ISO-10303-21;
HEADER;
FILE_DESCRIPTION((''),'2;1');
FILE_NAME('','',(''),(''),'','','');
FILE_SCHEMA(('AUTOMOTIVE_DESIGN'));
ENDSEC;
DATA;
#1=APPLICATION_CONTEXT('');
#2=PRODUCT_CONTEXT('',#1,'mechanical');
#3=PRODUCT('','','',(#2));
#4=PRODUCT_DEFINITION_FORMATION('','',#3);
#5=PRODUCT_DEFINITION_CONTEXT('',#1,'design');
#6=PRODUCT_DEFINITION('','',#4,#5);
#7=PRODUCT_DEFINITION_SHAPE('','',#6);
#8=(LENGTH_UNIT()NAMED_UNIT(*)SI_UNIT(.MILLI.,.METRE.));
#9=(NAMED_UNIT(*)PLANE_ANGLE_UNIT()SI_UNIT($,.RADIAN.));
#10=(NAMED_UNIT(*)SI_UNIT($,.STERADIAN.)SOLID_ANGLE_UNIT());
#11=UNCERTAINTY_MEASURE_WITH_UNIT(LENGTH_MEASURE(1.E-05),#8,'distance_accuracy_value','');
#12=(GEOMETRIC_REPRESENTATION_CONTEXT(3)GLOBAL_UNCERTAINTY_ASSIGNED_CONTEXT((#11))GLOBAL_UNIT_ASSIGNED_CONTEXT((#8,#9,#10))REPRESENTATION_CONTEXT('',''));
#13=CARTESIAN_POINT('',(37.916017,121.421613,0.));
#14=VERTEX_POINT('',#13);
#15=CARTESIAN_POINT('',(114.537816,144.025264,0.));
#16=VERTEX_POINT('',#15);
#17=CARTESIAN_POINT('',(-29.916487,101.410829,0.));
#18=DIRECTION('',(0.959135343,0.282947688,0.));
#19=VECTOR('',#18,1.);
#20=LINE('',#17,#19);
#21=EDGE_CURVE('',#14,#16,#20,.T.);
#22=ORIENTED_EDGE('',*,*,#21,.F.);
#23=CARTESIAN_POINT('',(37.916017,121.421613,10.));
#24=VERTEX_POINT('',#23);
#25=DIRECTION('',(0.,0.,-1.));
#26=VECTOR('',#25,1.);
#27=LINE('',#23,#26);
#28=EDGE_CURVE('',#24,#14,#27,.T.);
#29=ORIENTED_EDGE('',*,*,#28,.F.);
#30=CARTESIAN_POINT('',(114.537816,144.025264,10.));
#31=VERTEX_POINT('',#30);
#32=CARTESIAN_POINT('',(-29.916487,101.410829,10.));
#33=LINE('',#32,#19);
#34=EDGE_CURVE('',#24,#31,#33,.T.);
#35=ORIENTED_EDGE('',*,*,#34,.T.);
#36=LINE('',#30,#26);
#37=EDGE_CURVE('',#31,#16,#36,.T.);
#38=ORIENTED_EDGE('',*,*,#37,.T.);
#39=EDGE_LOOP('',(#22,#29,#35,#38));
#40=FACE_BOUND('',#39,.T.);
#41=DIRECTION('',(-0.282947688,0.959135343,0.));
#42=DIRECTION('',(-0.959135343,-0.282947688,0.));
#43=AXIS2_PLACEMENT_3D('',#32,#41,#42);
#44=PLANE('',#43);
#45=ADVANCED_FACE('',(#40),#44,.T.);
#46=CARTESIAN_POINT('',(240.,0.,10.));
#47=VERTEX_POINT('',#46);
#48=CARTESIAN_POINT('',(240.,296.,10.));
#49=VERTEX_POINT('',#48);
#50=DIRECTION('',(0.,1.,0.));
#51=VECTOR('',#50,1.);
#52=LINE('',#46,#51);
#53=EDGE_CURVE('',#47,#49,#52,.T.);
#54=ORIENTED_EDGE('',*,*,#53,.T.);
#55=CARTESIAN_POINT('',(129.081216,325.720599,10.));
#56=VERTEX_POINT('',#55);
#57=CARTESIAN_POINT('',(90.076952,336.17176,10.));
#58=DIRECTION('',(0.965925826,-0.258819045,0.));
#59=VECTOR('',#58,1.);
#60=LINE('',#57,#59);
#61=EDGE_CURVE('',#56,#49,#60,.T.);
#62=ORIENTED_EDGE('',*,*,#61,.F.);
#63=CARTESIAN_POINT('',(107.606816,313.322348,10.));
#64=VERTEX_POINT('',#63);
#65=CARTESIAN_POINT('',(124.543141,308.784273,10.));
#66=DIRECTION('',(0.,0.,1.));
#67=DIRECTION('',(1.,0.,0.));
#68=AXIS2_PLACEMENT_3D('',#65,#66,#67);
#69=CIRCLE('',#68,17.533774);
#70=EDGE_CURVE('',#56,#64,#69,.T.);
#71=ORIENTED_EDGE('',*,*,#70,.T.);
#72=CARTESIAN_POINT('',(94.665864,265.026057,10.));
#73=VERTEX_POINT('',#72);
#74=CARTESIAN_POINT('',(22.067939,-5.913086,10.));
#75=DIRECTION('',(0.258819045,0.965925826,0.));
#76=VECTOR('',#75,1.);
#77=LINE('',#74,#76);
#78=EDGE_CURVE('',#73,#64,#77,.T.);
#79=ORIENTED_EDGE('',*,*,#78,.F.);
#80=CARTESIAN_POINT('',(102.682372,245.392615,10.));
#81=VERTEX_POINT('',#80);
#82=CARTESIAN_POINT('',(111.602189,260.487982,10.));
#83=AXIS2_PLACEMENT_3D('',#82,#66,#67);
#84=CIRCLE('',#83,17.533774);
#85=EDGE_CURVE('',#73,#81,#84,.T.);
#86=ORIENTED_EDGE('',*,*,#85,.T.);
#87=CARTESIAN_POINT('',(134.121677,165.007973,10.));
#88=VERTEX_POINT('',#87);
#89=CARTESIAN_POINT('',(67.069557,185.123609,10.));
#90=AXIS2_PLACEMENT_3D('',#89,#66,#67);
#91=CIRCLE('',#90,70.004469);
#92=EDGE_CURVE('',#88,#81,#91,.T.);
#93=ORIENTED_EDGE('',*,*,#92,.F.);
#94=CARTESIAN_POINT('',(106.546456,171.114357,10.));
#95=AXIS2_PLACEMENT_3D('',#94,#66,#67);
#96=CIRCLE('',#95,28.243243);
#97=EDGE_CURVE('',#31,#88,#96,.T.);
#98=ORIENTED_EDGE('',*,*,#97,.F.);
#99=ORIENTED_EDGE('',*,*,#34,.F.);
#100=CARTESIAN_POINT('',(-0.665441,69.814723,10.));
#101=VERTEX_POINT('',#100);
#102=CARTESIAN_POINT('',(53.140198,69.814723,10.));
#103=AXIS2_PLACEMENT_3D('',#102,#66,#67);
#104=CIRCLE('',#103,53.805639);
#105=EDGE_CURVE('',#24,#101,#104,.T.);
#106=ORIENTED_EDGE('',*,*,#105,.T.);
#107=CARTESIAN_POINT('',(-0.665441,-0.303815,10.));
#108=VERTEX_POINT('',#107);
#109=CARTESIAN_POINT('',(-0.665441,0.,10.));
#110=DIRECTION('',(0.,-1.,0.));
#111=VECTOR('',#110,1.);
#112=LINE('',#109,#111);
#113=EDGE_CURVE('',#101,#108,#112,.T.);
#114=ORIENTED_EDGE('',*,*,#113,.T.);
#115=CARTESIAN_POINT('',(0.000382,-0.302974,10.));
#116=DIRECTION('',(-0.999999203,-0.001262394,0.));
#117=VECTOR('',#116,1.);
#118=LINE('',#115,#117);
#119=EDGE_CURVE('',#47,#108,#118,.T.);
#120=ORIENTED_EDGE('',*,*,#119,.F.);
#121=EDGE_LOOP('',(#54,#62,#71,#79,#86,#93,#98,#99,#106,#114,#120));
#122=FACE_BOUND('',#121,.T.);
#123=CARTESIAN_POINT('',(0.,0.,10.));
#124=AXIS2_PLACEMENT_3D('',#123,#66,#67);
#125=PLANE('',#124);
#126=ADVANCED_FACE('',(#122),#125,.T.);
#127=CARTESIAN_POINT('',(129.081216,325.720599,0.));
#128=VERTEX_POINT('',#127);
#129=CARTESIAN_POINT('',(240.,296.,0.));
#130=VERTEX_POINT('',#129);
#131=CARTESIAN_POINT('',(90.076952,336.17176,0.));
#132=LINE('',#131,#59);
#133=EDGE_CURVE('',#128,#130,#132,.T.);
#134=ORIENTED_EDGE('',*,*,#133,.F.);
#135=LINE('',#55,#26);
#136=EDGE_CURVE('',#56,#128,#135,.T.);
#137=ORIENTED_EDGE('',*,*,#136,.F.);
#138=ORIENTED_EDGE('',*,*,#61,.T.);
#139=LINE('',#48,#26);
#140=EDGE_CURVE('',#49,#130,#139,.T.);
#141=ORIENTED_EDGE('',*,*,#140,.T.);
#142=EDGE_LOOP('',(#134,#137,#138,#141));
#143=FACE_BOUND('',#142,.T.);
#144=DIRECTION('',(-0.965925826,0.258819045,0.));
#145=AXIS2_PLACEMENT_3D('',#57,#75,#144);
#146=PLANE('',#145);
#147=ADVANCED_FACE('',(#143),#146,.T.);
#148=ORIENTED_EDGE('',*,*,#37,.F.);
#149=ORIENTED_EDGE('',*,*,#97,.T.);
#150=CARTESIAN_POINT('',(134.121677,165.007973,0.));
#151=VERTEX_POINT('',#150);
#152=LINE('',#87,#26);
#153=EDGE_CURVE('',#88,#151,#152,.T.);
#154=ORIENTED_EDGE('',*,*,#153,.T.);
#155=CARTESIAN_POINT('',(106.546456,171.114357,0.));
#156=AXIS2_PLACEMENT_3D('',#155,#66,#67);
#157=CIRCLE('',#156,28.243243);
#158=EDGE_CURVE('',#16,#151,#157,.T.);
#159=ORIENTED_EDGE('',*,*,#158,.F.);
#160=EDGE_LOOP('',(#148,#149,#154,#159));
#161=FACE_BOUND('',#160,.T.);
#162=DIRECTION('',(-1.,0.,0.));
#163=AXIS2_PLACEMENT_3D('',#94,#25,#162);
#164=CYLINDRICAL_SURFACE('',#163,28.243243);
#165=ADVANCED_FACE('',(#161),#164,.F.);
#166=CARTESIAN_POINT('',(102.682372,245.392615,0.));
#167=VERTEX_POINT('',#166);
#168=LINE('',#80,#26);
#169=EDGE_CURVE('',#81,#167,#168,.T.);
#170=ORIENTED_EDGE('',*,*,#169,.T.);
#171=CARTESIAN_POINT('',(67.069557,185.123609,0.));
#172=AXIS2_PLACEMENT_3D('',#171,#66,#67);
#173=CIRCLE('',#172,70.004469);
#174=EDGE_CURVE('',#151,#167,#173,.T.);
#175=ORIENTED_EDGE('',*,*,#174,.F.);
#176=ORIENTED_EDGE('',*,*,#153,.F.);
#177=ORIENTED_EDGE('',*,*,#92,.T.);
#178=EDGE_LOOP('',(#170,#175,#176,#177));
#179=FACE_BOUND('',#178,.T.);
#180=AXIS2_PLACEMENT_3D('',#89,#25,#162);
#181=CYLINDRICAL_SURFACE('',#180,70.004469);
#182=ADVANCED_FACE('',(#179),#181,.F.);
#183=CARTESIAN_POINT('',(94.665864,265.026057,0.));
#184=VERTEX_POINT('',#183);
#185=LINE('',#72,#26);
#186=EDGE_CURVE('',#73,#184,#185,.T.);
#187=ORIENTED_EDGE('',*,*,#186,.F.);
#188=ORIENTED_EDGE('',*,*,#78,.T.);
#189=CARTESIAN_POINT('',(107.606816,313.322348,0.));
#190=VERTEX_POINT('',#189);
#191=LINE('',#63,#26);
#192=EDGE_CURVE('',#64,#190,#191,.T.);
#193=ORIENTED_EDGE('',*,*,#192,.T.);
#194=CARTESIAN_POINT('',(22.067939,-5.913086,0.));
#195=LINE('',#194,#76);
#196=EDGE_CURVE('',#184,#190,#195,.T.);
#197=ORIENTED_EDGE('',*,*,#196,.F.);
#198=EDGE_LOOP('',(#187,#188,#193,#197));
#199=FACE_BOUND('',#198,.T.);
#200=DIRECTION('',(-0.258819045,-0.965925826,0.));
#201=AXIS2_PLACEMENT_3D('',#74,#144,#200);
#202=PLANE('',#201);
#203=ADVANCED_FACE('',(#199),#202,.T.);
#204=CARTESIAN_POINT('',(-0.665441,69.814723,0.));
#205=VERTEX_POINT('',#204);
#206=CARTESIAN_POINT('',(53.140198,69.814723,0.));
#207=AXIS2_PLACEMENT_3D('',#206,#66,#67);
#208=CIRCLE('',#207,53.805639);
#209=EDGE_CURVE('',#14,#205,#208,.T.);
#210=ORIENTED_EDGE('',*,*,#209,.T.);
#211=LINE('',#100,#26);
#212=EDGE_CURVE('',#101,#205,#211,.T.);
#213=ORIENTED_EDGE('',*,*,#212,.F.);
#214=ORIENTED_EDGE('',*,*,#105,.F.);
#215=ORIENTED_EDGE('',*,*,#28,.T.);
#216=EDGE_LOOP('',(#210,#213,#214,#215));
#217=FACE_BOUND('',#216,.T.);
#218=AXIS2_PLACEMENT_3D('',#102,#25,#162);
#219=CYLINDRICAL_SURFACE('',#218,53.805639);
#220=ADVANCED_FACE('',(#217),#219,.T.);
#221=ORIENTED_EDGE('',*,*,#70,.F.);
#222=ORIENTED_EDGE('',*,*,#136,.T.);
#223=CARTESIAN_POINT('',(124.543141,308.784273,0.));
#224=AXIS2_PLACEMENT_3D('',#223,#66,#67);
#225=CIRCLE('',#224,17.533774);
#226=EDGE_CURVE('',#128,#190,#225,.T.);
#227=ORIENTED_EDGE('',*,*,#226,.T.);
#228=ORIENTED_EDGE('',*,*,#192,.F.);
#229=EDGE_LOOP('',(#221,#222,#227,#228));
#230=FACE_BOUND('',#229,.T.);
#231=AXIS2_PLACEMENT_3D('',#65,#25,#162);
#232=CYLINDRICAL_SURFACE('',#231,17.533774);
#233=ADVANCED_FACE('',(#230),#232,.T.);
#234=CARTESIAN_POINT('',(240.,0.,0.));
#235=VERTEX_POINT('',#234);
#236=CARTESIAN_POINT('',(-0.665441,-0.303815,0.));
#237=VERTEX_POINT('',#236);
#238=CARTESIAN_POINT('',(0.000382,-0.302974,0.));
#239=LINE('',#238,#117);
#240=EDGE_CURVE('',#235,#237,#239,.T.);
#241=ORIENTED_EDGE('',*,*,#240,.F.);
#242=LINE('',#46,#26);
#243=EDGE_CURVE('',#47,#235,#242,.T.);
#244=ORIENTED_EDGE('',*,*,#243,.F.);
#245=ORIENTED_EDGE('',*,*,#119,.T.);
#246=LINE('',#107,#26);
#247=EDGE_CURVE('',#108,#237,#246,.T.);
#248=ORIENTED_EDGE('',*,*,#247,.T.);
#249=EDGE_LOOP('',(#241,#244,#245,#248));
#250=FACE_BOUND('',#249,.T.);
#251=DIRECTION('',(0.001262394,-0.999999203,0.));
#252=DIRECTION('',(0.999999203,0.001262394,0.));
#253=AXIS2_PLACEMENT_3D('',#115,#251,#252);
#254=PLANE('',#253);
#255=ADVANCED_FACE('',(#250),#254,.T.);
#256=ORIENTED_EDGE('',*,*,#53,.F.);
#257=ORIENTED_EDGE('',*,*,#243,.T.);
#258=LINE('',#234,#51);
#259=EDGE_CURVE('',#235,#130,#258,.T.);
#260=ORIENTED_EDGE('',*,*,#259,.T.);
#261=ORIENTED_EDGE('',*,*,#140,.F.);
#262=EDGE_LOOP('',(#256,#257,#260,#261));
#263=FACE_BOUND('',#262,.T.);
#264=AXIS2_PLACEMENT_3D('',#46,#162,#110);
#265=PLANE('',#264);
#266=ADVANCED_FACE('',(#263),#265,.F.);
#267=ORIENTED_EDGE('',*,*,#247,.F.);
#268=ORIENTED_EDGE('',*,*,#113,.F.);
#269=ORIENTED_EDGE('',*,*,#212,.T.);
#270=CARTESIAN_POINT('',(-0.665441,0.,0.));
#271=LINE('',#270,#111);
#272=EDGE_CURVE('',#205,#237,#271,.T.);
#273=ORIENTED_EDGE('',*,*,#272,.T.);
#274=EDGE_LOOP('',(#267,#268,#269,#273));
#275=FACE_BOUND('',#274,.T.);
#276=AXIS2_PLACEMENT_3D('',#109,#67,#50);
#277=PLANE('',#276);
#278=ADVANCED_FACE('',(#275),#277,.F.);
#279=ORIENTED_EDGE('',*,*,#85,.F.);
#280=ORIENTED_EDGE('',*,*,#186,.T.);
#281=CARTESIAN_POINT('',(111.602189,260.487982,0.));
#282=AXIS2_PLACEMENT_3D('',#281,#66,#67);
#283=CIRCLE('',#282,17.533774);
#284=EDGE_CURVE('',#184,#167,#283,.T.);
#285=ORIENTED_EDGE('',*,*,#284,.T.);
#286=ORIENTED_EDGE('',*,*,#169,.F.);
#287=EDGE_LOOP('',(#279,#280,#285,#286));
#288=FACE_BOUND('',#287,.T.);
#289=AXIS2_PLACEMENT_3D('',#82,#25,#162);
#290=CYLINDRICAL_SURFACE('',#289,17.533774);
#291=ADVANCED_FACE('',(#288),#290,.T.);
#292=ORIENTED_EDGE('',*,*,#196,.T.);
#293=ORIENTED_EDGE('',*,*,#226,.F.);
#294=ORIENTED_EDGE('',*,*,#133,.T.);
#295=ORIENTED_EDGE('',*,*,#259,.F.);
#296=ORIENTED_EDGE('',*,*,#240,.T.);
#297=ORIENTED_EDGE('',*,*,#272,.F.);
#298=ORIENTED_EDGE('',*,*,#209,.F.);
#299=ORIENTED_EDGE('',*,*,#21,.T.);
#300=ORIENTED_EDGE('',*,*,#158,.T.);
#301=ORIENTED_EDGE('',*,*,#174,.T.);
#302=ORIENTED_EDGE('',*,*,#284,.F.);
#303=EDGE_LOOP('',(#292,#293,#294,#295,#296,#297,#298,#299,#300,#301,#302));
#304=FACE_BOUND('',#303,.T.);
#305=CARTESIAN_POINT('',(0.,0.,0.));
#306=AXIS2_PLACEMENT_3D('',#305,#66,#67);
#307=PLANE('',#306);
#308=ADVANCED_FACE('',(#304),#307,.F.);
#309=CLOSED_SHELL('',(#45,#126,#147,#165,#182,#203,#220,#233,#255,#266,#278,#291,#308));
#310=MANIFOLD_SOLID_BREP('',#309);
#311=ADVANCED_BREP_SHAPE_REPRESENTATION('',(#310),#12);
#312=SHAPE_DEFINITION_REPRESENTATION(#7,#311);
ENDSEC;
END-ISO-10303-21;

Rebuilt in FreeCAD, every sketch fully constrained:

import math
import FreeCAD as App
import Part
import Sketcher
from FreeCAD import Vector
Q = App.Units.Quantity

doc = App.newDocument("Part")
params = doc.addObject("Spreadsheet::Sheet", "Params")
for row, (alias, value) in enumerate([
    ("sketch1_height", "296 mm"),
    ("sketch1_length", "50 mm"),
    ("pad1_length", "10 mm"),
], start=1):
    params.set(f"A{row}", alias)
    params.set(f"B{row}", "=" + value)
    params.setAlias(f"B{row}", alias)

body = doc.addObject("PartDesign::Body", "Body")

# Sketch on XY plane
sketch1 = body.newObject("Sketcher::SketchObject", "Sketch")
sketch1.AttachmentSupport = (doc.getObject("XY_Plane"), [""])
sketch1.MapMode = "FlatFace"
sketch1.addGeometry(Part.LineSegment(Vector(114.537816, 144.025264, 0), Vector(37.916017, 121.421613, 0)), False)
sketch1.addGeometry(Part.ArcOfCircle(Part.Circle(Vector(53.140198, 69.814723, 0), Vector(0, 0, 1), 53.805639), math.radians(106.436211), math.radians(180)), False)
sketch1.addGeometry(Part.LineSegment(Vector(-0.665441, 69.814723, 0), Vector(-0.665441, -0.303815, 0)), False)
sketch1.addGeometry(Part.LineSegment(Vector(-0.665441, -0.303815, 0), Vector(240, 0, 0)), False)
sketch1.addGeometry(Part.LineSegment(Vector(240, 0, 0), Vector(240, 296, 0)), False)
sketch1.addGeometry(Part.LineSegment(Vector(240, 296, 0), Vector(129.081216, 325.720599, 0)), False)
sketch1.addGeometry(Part.ArcOfCircle(Part.Circle(Vector(124.543141, 308.784273, 0), Vector(0, 0, 1), 17.533774), math.radians(75), math.radians(165)), False)
sketch1.addGeometry(Part.LineSegment(Vector(107.606816, 313.322348, 0), Vector(94.665864, 265.026057, 0)), False)
sketch1.addGeometry(Part.ArcOfCircle(Part.Circle(Vector(111.602189, 260.487982, 0), Vector(0, 0, 1), 17.533774), math.radians(165), math.radians(239.421258)), False)
sketch1.addGeometry(Part.ArcOfCircle(Part.Circle(Vector(67.069557, 185.123609, 0), Vector(0, 0, 1), 70.004469), math.radians(-16.699244), math.radians(59.421258)), False)
sketch1.addGeometry(Part.ArcOfCircle(Part.Circle(Vector(106.546456, 171.114357, 0), Vector(0, 0, 1), 28.243243), math.radians(-73.563789), math.radians(-12.486342)), False)
sketch1.addConstraint(Sketcher.Constraint("Tangent", 0, 2, 1, 1))
sketch1.addConstraint(Sketcher.Constraint("Tangent", 1, 2, 2, 1))
sketch1.addConstraint(Sketcher.Constraint("Coincident", 2, 2, 3, 1))
sketch1.addConstraint(Sketcher.Constraint("Coincident", 3, 2, 4, 1))
sketch1.addConstraint(Sketcher.Constraint("Coincident", 4, 2, 5, 1))
sketch1.addConstraint(Sketcher.Constraint("Tangent", 5, 2, 6, 1))
sketch1.addConstraint(Sketcher.Constraint("Tangent", 6, 2, 7, 1))
sketch1.addConstraint(Sketcher.Constraint("Tangent", 7, 2, 8, 1))
sketch1.addConstraint(Sketcher.Constraint("Tangent", 8, 2, 9, 2))
sketch1.addConstraint(Sketcher.Constraint("Coincident", 9, 1, 10, 2))
sketch1.addConstraint(Sketcher.Constraint("Tangent", 10, 1, 0, 1))
sketch1.addConstraint(Sketcher.Constraint("Vertical", 2))
sketch1.addConstraint(Sketcher.Constraint("Vertical", 4))
sketch1.addConstraint(Sketcher.Constraint("Equal", 6, 8))
sketch1.addConstraint(Sketcher.Constraint("PointOnObject", 3, 2, -1))
sketch1.addConstraint(Sketcher.Constraint("Perpendicular", 5, 7))
sketch1.addConstraint(Sketcher.Constraint("DistanceY", 4, 1, 4, 2, 296.0))
sketch1.addConstraint(Sketcher.Constraint("Angle", 5, Q("165 deg")))
sketch1.addConstraint(Sketcher.Constraint("Distance", 7, 50.0))
sketch1.addConstraint(Sketcher.Constraint("DistanceX", -1, 1, 3, 2, 240.0))
sketch1.addConstraint(Sketcher.Constraint("Radius", 1, 53.805639))
sketch1.addConstraint(Sketcher.Constraint("Radius", 9, 70.004469))
sketch1.addConstraint(Sketcher.Constraint("Radius", 6, 17.533774))
sketch1.addConstraint(Sketcher.Constraint("Radius", 10, 28.243243))
sketch1.addConstraint(Sketcher.Constraint("DistanceX", 1, 2, 9, 3, 67.734998))
sketch1.addConstraint(Sketcher.Constraint("DistanceX", -1, 1, 1, 3, 53.140198))
sketch1.addConstraint(Sketcher.Constraint("DistanceY", -1, 1, 5, 2, 325.720599))
sketch1.addConstraint(Sketcher.Constraint("DistanceX", 9, 3, 10, 3, 39.476899))
sketch1.addConstraint(Sketcher.Constraint("DistanceX", 0, 2, 10, 1, 76.621799))
sketch1.addConstraint(Sketcher.Constraint("DistanceY", 2, 2, 2, 1, 70.118537))
sketch1.addConstraint(Sketcher.Constraint("DistanceY", 1, 3, 6, 3, 238.969551))
sketch1.setExpression("Constraints[16]", "Params.sketch1_height")
sketch1.setExpression("Constraints[18]", "Params.sketch1_length")
pad1 = body.newObject("PartDesign::Pad", "Pad")
pad1.Profile = sketch1
pad1.setExpression("Length", "Params.pad1_length")

doc.recompute()
